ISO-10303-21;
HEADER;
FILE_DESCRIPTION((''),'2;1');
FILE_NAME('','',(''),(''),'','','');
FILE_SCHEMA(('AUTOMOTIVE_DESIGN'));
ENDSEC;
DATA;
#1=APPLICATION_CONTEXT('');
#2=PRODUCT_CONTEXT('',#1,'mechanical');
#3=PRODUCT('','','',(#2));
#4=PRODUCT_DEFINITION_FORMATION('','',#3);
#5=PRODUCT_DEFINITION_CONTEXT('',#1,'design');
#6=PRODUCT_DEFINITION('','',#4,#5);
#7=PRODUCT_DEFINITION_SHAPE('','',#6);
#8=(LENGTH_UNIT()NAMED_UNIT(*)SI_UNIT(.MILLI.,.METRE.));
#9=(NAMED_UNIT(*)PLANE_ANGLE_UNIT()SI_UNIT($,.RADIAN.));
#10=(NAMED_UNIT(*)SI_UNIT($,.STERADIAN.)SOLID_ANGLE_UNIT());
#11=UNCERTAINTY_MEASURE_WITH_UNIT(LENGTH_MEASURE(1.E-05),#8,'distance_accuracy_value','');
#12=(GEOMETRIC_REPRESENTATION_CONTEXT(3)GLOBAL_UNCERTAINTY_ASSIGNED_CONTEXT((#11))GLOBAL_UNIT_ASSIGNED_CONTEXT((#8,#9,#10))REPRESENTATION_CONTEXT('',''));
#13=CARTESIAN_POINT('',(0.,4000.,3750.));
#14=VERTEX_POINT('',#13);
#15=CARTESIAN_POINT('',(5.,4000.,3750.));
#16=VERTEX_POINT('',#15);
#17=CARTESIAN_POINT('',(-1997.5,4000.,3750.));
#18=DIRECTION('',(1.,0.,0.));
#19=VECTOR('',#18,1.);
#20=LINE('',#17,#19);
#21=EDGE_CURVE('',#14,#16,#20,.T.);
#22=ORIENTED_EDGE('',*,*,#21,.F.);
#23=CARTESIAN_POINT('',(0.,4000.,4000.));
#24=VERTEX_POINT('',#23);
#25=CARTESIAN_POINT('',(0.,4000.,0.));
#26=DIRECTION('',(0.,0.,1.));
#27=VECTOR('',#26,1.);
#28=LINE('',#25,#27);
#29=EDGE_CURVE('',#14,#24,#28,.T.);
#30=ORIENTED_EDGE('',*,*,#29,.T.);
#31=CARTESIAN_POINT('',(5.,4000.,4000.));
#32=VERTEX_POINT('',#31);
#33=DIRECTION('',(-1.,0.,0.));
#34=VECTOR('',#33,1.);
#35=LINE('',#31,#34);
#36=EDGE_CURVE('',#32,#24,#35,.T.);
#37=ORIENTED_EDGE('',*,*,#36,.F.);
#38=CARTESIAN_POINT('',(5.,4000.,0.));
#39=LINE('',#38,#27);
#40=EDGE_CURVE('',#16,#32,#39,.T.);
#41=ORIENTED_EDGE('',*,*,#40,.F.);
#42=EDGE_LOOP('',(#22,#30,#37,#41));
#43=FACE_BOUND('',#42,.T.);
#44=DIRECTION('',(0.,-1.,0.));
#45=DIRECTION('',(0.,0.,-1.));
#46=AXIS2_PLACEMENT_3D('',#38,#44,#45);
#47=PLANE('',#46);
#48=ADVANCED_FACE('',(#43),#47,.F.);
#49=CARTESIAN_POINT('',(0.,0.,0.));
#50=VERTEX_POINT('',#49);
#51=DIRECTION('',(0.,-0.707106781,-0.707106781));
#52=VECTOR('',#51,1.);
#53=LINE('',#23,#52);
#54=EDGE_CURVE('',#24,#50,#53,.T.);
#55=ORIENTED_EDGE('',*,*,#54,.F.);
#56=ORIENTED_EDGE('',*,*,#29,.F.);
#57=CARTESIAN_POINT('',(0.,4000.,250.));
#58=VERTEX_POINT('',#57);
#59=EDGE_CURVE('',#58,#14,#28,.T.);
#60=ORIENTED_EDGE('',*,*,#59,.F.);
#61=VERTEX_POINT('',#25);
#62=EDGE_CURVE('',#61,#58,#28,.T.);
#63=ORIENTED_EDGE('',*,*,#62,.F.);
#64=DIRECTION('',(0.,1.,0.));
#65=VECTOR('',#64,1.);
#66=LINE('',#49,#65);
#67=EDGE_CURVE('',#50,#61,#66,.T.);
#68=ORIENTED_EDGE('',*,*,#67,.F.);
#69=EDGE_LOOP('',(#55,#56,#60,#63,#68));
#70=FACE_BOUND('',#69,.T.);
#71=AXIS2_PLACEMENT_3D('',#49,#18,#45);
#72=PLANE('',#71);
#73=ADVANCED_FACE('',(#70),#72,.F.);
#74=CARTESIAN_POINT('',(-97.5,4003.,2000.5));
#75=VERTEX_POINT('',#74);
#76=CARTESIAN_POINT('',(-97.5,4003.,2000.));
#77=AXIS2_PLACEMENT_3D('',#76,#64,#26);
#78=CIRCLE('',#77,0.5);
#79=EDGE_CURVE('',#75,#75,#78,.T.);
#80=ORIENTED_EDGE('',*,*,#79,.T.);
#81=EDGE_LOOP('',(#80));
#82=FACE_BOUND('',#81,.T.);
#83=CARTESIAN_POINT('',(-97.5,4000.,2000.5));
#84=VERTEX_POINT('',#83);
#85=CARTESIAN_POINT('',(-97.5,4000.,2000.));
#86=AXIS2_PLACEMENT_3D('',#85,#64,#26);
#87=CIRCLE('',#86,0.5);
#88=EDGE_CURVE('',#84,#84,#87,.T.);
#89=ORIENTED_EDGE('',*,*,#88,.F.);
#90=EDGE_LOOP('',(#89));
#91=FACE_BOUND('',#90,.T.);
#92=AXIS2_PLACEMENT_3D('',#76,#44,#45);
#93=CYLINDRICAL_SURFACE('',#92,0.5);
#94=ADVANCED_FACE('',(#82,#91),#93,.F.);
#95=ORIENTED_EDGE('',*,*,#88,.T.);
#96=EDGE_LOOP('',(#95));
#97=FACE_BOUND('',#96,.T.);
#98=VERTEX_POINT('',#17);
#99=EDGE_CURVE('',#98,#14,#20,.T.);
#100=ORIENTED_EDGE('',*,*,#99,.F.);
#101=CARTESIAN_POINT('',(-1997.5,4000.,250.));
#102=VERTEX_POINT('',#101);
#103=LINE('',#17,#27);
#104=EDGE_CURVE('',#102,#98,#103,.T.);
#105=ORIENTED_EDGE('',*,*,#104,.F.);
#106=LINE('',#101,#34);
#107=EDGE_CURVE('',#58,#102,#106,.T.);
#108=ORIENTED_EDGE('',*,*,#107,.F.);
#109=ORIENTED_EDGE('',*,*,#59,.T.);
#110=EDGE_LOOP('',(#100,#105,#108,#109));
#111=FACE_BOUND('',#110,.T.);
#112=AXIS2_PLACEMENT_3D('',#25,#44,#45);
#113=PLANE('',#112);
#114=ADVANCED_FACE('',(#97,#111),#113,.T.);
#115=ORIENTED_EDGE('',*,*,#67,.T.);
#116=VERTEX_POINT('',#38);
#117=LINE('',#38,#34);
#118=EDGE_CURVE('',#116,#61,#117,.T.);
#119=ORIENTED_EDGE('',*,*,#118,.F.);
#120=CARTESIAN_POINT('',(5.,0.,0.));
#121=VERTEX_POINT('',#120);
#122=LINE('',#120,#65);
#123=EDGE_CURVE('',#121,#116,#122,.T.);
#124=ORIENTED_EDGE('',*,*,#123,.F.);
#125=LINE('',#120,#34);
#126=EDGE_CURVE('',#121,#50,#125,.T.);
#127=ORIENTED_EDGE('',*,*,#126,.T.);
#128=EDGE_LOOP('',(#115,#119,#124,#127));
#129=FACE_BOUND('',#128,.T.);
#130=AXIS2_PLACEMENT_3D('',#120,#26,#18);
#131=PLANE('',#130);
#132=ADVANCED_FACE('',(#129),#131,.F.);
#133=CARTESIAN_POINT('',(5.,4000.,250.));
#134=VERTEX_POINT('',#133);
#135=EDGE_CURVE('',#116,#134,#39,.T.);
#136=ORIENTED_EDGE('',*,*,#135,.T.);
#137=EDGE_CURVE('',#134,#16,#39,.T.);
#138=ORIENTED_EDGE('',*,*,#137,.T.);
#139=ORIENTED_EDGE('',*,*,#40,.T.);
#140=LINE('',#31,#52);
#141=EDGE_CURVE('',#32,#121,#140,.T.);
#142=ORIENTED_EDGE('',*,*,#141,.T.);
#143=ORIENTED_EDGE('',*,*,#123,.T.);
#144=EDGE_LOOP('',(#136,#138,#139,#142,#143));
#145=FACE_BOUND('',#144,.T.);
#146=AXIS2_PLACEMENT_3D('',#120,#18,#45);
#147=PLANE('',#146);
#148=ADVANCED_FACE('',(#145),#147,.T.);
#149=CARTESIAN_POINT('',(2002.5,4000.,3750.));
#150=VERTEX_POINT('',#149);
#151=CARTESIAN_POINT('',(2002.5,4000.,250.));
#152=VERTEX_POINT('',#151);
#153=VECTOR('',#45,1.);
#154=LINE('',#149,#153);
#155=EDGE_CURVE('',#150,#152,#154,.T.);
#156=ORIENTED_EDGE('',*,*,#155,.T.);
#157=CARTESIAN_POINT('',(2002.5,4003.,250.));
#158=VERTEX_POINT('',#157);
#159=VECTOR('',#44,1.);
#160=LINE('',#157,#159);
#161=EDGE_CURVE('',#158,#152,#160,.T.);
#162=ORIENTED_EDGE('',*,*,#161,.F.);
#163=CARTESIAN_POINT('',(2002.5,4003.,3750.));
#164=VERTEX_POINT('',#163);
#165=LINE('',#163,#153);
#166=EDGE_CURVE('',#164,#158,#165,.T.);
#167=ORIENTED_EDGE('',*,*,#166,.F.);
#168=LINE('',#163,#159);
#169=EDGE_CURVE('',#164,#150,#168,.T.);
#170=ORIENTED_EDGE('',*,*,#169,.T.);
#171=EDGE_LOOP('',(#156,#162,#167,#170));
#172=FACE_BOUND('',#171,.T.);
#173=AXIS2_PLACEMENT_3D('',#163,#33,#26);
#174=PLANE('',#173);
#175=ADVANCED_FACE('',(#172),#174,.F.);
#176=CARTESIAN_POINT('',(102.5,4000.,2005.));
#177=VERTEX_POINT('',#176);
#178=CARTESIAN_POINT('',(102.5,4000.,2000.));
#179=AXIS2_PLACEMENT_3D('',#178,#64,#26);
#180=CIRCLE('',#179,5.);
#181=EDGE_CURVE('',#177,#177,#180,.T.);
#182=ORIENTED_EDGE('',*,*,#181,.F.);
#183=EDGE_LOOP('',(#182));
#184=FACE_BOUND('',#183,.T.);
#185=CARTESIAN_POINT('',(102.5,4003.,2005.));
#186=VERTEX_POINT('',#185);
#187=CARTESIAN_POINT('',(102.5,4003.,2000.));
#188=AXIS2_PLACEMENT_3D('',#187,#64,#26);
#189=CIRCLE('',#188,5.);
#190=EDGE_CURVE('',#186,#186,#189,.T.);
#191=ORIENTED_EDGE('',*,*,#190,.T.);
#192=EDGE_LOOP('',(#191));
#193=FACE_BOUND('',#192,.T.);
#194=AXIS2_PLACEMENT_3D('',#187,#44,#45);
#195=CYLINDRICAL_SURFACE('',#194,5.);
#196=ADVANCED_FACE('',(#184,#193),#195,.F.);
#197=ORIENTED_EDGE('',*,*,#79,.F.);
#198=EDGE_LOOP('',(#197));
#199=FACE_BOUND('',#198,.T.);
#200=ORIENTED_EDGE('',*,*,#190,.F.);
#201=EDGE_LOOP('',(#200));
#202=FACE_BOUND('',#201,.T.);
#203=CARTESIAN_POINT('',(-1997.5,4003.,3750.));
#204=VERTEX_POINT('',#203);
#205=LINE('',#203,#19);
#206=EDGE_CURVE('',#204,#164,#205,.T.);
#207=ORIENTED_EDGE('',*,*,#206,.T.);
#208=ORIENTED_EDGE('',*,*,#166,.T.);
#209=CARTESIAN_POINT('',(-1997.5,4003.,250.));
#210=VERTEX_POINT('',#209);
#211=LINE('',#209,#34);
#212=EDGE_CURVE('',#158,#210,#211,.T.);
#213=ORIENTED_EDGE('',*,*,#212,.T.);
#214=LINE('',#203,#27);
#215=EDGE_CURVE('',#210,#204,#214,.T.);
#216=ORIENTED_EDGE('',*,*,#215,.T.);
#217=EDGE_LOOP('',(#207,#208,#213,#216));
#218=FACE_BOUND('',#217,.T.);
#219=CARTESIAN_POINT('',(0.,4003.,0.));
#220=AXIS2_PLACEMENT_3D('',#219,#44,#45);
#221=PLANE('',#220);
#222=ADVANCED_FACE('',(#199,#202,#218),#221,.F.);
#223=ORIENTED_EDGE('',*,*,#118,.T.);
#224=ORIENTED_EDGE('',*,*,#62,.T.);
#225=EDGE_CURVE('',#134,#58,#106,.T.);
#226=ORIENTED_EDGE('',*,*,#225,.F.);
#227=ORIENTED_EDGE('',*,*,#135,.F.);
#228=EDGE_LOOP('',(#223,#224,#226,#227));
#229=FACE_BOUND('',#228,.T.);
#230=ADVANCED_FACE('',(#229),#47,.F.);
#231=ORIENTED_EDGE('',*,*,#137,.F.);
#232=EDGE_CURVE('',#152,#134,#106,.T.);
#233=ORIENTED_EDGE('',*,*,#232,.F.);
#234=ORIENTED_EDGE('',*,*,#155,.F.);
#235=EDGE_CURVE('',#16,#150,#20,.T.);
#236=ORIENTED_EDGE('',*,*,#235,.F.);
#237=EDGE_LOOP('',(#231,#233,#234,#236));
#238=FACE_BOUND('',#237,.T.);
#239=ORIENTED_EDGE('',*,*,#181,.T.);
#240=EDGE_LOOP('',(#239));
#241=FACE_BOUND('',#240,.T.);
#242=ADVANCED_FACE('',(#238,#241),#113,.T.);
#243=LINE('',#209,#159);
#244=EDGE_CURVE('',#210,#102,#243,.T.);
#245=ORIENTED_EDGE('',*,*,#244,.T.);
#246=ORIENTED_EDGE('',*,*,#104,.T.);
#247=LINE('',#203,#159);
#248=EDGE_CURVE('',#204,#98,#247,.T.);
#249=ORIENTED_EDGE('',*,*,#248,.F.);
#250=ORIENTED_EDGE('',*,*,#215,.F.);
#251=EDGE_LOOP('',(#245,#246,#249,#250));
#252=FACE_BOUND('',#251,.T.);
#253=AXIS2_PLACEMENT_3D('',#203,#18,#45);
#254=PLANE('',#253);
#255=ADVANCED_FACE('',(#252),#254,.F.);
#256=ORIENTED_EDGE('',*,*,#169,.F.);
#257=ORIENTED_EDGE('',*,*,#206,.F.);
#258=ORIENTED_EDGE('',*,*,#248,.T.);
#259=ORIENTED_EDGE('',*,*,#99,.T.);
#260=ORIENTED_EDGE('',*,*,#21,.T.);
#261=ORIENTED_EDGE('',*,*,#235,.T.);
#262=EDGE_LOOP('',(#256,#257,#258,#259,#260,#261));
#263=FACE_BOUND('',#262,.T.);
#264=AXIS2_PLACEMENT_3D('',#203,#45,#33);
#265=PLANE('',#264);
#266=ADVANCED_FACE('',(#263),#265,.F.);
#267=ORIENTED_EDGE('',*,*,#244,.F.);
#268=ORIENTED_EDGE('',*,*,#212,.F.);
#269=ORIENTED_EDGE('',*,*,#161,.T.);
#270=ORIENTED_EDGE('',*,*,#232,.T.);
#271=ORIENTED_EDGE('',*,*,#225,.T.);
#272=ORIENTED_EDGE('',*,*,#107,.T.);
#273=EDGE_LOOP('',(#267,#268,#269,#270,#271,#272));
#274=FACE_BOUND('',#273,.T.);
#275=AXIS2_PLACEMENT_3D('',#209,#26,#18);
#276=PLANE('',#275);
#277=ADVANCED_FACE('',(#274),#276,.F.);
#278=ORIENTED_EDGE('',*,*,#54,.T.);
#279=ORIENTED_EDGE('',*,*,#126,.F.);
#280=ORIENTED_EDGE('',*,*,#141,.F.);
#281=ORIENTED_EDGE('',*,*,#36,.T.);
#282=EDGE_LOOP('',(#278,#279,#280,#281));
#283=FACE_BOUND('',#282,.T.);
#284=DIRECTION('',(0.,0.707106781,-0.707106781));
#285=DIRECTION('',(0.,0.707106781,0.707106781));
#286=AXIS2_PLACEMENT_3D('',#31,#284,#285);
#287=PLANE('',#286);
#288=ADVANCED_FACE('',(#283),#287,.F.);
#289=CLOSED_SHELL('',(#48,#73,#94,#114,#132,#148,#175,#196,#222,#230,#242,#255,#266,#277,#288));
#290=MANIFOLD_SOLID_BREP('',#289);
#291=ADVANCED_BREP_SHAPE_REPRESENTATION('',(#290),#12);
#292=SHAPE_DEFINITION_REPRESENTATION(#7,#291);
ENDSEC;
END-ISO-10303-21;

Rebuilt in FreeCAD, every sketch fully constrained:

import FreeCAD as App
import Part
import Sketcher
Q = App.Units.Quantity


def add_polygon(sketch, points):
    """Adds a closed chain of lines whose ends are joined by coincident constraints."""
    first, n = sketch.GeometryCount, len(points)
    for a, b in zip(points, points[1:] + points[:1]):
        sketch.addGeometry(Part.LineSegment(App.Vector(*a, 0), App.Vector(*b, 0)), False)
    for i in range(n):
        sketch.addConstraint(Sketcher.Constraint("Coincident", first + i, 2, first + (i + 1) % n, 1))

doc = App.newDocument("Part")
body = doc.addObject("PartDesign::Body", "Body")

# Sketch on YZ plane
sketch1 = body.newObject("Sketcher::SketchObject", "Sketch")
sketch1.AttachmentSupport = (doc.getObject("YZ_Plane"), [""])
sketch1.MapMode = "FlatFace"
add_polygon(sketch1, [(4000, 4000), (0, 0), (4000, 0)])  # lines 0-2
sketch1.addConstraint(Sketcher.Constraint("Horizontal", 1))
sketch1.addConstraint(Sketcher.Constraint("Vertical", 2))
sketch1.addConstraint(Sketcher.Constraint("Coincident", 0, 2, -1, 1))
sketch1.addConstraint(Sketcher.Constraint("Equal", 1, 2))
sketch1.addConstraint(Sketcher.Constraint("DistanceX", 1, 1, 1, 2, Q("4000 mm")))
pad1 = body.newObject("PartDesign::Pad", "Pad")
pad1.Profile = sketch1
pad1.Length = 5

# Sketch on XZ plane
sketch2 = body.newObject("Sketcher::SketchObject", "Sketch001")
sketch2.AttachmentSupport = (doc.getObject("XZ_Plane"), [""])
sketch2.MapMode = "FlatFace"
sketch2.AttachmentOffset = App.Placement(App.Vector(0, 0, -4000), App.Rotation())
add_polygon(sketch2, [(-1997.5, 250), (-1997.5, 3750), (2002.5, 3750), (2002.5, 250)])  # lines 0-3
sketch2.addGeometry(Part.Circle(App.Vector(-97.5, 2000, 0), App.Vector(0, 0, 1), 0.5), False)  # 4
sketch2.addGeometry(Part.Circle(App.Vector(102.5, 2000, 0), App.Vector(0, 0, 1), 5), False)  # 5
sketch2.addConstraint(Sketcher.Constraint("Vertical", 0))
sketch2.addConstraint(Sketcher.Constraint("Horizontal", 1))
sketch2.addConstraint(Sketcher.Constraint("Vertical", 2))
sketch2.addConstraint(Sketcher.Constraint("Horizontal", 3))
sketch2.addConstraint(Sketcher.Constraint("Horizontal", 4, 3, 5, 3))
sketch2.addConstraint(Sketcher.Constraint("Diameter", 4, Q("1 mm")))
sketch2.addConstraint(Sketcher.Constraint("Diameter", 5, Q("10 mm")))
sketch2.addConstraint(Sketcher.Constraint("DistanceX", 1, 1, 1, 2, Q("4000 mm")))
sketch2.addConstraint(Sketcher.Constraint("DistanceY", 0, 1, 0, 2, Q("3500 mm")))
sketch2.addConstraint(Sketcher.Constraint("DistanceY", -1, 1, 4, 3, Q("2000 mm")))
sketch2.addConstraint(Sketcher.Constraint("DistanceY", -1, 1, 0, 2, Q("3750 mm")))
sketch2.addConstraint(Sketcher.Constraint("DistanceX", 4, 3, 5, 3, Q("200 mm")))
sketch2.addConstraint(Sketcher.Constraint("DistanceX", 0, 2, 4, 3, Q("1900 mm")))
sketch2.addConstraint(Sketcher.Constraint("DistanceX", 4, 3, -1, 1, Q("97.5 mm")))
pad2 = body.newObject("PartDesign::Pad", "Pad001")
pad2.Profile = sketch2
pad2.Length = 3
pad2.Reversed = True

doc.recompute()
